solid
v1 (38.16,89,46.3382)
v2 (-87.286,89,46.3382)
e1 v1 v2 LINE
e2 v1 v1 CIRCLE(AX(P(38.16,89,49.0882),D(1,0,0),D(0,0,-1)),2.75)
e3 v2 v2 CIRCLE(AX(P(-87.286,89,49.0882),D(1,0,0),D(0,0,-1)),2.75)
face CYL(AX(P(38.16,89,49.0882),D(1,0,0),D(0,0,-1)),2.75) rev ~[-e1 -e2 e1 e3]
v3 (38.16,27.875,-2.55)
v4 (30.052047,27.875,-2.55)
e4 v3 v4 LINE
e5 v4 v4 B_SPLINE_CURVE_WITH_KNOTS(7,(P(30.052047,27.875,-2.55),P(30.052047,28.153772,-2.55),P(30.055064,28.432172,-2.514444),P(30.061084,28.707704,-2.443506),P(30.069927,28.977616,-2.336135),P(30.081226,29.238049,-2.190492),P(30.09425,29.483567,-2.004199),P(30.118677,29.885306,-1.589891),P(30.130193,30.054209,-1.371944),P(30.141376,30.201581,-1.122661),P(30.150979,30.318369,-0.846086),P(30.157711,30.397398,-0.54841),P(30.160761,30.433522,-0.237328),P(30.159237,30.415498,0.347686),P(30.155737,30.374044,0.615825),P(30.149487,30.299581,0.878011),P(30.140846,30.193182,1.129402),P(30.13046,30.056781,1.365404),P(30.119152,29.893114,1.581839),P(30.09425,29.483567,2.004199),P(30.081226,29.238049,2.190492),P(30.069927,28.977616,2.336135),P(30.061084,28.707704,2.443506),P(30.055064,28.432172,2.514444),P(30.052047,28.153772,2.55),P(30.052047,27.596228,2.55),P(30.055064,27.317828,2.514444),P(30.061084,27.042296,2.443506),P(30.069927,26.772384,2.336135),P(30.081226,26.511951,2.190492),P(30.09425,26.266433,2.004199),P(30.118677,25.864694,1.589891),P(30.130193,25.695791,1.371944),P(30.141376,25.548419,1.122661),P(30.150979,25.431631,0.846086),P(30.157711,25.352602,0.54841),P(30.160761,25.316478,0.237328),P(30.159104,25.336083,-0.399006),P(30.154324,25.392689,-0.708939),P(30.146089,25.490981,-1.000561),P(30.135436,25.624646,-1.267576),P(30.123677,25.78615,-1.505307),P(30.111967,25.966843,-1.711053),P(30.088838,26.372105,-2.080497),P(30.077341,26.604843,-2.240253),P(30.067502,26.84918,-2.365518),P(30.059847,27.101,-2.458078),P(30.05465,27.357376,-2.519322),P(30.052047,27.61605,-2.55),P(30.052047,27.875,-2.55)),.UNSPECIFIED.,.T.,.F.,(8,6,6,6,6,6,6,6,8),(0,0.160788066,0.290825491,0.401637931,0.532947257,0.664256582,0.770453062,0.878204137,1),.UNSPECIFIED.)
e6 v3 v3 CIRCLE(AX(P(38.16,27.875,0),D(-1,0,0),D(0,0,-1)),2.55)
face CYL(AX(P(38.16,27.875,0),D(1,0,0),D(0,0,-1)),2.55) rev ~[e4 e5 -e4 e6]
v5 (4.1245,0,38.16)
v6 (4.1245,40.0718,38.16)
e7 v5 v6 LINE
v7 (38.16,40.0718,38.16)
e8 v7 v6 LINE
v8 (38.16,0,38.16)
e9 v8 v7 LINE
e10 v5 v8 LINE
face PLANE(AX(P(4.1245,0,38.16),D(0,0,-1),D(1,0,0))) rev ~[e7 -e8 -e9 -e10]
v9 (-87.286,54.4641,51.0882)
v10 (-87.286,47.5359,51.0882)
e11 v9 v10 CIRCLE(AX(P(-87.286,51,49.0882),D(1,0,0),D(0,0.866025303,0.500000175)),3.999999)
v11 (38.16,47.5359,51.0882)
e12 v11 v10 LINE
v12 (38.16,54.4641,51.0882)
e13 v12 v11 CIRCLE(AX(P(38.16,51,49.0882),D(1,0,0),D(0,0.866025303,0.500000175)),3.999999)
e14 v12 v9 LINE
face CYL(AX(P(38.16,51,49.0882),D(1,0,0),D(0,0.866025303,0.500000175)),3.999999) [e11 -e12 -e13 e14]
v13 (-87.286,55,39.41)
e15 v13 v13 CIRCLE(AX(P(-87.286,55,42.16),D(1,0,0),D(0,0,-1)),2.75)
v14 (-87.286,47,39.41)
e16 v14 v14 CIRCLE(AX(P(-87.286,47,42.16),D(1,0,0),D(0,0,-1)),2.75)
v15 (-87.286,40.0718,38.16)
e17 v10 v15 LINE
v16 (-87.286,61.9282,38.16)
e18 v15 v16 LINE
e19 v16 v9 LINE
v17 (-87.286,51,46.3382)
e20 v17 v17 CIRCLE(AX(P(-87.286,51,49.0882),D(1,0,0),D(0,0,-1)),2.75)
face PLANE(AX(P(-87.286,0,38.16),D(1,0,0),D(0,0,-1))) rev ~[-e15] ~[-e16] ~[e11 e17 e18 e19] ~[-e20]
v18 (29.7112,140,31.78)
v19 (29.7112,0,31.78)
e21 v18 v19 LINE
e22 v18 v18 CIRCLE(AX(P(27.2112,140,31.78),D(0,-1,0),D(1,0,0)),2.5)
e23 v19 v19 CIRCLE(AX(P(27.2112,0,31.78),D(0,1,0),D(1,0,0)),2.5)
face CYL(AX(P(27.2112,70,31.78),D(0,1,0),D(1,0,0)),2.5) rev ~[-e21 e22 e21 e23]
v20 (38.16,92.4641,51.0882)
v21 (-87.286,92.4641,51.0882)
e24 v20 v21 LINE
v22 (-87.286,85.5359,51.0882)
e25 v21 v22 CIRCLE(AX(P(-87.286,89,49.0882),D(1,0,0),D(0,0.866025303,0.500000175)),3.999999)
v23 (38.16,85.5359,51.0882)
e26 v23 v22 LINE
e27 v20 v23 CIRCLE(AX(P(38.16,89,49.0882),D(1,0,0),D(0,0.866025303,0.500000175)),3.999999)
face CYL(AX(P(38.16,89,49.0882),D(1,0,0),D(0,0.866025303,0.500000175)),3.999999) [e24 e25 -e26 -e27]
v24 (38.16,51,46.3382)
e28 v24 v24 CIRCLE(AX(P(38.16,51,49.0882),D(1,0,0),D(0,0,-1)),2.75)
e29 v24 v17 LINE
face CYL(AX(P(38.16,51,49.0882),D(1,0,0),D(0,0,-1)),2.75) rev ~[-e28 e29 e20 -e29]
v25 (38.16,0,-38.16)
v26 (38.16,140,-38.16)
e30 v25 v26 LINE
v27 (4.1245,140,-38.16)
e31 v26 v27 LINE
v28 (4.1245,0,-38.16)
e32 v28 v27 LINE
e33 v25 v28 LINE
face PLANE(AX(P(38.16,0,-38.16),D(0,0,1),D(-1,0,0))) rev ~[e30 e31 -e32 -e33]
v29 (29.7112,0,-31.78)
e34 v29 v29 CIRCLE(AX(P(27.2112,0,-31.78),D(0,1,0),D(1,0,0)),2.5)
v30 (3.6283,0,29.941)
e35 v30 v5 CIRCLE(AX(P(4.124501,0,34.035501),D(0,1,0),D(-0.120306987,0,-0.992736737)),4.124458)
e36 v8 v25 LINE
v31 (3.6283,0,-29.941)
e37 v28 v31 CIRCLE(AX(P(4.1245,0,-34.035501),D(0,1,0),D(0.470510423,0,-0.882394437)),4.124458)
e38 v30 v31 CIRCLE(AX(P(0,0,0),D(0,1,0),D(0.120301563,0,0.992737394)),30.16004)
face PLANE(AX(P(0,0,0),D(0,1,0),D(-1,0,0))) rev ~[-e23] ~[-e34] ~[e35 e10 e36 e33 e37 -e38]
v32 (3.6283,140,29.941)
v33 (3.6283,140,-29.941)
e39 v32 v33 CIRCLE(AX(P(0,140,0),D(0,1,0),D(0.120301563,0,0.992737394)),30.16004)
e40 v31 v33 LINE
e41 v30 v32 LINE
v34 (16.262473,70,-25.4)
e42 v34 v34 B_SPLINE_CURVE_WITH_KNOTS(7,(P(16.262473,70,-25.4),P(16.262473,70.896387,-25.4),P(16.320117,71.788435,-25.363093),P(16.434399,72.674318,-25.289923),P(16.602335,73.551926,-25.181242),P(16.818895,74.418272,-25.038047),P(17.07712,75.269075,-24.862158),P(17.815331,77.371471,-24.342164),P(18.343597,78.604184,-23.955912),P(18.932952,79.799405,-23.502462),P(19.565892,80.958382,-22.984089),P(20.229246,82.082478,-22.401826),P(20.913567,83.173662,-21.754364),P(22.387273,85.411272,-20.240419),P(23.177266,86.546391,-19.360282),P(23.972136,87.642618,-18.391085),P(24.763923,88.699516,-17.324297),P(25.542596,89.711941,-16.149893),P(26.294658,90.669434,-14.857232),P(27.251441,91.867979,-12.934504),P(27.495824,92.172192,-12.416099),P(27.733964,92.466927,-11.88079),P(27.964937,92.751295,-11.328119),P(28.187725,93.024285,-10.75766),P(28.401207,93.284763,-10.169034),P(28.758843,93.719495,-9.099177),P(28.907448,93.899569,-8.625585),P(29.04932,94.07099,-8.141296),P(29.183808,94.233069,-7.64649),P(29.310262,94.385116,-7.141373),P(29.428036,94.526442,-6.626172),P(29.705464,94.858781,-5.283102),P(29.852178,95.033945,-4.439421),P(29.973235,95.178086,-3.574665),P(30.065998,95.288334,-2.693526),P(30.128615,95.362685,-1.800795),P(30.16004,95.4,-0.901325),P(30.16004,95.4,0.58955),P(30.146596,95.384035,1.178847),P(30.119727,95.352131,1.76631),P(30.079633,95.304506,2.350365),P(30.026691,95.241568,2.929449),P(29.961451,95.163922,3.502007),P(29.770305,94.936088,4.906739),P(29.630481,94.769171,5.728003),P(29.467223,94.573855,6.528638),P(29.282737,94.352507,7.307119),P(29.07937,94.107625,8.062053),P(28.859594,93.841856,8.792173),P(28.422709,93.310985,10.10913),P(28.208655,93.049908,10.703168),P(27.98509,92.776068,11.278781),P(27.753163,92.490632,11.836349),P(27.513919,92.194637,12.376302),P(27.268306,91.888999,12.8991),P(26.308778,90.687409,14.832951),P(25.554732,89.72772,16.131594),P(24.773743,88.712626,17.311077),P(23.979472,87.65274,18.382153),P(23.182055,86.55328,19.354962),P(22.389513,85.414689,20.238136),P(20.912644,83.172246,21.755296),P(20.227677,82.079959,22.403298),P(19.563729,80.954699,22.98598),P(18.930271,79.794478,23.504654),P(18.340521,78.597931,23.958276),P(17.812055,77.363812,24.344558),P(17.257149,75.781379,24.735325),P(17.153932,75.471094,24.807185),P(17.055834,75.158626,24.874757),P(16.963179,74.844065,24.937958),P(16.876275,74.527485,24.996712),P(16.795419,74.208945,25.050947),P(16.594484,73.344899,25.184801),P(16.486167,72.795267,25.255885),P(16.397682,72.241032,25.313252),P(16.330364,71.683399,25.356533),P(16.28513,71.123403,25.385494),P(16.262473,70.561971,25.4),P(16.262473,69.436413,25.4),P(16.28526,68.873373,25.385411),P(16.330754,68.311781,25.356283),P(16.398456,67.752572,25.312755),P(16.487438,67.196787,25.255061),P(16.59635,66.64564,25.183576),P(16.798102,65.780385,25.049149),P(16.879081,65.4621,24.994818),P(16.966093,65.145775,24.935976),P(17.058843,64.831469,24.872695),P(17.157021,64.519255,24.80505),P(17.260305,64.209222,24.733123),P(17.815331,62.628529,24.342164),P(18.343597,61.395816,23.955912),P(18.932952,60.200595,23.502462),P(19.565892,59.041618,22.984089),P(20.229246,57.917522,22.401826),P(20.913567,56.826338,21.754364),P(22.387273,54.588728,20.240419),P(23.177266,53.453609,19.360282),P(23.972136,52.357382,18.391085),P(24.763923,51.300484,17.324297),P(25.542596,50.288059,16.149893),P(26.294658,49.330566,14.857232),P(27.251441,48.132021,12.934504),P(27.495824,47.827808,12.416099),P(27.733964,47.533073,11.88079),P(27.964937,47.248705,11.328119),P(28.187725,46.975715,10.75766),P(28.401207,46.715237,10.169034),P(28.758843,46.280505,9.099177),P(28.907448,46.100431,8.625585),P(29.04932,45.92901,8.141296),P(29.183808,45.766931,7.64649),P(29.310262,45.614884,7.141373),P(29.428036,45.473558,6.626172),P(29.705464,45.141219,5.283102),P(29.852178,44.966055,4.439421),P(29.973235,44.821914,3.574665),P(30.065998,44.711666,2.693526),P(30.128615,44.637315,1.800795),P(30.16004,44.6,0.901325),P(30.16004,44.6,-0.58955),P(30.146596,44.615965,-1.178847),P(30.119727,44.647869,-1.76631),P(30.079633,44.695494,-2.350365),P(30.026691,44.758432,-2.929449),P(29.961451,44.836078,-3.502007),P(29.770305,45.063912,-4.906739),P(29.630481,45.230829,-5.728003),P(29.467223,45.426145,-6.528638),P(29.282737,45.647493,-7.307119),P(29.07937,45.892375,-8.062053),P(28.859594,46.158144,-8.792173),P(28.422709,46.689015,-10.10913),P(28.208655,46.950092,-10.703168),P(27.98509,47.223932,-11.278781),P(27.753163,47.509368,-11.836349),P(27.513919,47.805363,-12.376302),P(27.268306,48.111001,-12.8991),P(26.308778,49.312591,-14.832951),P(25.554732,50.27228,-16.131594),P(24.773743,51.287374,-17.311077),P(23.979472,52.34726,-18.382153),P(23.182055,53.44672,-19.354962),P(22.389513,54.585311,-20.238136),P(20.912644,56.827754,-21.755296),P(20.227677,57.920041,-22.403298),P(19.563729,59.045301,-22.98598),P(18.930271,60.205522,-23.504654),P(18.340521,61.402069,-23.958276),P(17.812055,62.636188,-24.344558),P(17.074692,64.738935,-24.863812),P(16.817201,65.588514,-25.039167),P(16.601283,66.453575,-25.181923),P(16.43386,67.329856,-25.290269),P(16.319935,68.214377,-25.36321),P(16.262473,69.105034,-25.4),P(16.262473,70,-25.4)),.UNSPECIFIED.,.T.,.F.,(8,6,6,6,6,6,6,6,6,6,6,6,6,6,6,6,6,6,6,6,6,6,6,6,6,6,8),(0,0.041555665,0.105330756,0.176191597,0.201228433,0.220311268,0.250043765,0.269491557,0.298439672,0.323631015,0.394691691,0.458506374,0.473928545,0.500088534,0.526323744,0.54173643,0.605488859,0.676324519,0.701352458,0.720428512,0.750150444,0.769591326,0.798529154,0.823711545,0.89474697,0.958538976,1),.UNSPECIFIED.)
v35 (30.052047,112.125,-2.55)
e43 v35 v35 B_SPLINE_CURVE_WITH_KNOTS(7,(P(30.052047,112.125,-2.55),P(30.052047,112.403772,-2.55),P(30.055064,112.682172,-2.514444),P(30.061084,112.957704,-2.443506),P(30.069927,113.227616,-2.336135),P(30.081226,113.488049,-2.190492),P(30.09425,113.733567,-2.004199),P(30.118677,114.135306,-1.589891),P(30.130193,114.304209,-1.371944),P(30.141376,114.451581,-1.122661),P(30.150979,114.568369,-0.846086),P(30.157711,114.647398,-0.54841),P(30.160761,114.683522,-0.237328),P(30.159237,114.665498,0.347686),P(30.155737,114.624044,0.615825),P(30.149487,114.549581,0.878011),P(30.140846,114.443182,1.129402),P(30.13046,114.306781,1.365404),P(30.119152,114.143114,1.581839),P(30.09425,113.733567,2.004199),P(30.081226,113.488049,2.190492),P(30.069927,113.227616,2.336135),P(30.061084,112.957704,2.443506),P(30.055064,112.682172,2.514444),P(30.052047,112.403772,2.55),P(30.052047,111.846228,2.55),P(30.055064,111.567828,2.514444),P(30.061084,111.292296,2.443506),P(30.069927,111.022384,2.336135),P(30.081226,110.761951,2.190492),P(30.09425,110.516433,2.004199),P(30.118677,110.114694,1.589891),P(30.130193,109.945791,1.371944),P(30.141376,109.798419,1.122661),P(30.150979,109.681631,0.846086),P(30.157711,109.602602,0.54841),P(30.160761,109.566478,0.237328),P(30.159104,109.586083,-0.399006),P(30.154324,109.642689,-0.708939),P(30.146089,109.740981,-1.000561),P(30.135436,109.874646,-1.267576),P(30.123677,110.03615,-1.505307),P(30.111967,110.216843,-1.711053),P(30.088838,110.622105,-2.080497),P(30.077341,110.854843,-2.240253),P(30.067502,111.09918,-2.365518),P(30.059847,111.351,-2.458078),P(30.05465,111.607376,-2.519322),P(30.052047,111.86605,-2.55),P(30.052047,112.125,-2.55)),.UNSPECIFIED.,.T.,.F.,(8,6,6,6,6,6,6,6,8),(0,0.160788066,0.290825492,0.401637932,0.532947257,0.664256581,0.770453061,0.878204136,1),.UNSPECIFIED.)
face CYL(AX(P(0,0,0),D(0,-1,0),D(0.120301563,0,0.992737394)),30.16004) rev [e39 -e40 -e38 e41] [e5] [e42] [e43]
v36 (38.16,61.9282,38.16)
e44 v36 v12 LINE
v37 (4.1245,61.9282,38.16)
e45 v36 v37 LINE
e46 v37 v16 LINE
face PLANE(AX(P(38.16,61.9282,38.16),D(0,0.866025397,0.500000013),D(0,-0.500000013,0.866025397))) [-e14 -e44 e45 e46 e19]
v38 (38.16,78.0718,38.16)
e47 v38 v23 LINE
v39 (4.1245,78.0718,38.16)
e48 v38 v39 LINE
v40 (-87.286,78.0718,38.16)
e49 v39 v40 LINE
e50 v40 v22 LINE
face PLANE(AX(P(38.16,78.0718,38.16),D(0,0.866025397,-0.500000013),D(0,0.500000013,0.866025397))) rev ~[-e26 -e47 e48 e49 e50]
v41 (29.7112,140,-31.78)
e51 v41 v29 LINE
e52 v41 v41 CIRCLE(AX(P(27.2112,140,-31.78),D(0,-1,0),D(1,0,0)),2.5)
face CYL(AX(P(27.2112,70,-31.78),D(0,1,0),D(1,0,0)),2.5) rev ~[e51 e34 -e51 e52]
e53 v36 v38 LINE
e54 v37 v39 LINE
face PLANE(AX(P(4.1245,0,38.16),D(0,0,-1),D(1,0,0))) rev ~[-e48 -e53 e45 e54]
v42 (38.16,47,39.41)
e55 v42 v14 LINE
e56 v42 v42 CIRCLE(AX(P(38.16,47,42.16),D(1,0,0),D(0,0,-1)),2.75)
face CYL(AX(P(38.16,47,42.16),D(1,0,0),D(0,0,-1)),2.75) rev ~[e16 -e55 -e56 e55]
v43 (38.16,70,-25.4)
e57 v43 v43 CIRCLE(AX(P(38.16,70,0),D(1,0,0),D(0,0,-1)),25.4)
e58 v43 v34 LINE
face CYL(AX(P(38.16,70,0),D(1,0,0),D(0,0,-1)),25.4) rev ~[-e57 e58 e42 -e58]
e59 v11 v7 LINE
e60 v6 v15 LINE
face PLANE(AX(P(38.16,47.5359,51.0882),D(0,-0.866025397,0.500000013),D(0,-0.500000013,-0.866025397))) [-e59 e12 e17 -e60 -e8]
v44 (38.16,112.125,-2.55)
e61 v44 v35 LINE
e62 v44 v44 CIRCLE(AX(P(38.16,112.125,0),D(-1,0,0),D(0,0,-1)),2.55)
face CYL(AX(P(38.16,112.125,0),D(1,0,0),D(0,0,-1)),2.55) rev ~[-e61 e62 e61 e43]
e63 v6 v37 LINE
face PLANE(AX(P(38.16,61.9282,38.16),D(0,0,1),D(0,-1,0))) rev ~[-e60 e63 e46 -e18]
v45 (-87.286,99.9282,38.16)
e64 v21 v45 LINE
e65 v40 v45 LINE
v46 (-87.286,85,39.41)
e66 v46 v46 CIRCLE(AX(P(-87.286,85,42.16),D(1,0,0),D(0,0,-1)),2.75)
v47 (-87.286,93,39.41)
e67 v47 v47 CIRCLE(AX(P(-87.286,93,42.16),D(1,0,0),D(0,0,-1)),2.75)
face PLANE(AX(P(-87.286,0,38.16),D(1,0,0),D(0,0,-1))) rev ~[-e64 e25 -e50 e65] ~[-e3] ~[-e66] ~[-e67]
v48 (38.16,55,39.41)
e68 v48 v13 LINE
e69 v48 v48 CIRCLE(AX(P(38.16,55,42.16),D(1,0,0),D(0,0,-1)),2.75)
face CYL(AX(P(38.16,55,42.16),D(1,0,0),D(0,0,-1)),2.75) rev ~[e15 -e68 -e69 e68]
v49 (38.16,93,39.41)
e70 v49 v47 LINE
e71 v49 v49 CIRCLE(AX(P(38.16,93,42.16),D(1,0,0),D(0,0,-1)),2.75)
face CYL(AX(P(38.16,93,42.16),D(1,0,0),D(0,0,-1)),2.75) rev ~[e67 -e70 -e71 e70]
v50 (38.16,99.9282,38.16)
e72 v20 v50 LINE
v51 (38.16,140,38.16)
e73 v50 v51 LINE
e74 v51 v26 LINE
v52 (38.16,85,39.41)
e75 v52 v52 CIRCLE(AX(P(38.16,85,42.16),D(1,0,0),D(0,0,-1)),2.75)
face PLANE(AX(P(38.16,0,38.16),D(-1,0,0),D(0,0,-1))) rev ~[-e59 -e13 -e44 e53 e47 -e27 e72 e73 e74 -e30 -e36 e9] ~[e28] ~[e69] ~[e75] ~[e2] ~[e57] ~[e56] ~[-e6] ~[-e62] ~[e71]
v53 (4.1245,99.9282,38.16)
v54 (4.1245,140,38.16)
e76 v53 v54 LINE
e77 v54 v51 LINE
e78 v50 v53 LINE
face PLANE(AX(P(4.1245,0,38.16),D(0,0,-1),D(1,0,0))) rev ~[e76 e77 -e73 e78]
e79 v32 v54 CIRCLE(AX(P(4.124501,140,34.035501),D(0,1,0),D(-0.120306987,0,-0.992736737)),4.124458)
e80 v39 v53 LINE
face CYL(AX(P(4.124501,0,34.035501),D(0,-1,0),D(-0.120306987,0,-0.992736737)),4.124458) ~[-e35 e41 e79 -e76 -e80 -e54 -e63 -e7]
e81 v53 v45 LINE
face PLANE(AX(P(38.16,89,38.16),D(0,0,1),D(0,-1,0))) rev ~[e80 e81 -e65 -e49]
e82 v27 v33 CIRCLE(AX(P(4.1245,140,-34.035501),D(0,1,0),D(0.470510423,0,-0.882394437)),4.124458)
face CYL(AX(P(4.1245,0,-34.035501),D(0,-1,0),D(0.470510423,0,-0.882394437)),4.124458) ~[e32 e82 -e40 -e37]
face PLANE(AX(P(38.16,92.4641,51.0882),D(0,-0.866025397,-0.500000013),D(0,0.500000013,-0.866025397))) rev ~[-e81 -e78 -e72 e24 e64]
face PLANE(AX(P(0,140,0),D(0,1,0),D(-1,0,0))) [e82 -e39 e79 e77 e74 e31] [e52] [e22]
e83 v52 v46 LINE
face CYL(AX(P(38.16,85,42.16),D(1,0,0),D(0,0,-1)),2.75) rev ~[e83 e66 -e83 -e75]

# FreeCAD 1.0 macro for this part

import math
import FreeCAD as App
import Part
import Sketcher

V = App.Vector
Q = App.Units.Quantity

doc = App.newDocument("Part")
body = doc.addObject("PartDesign::Body", "Body")

# Sketch on XZ plane
sketch1 = body.newObject("Sketcher::SketchObject", "Sketch")
sketch1.AttachmentSupport = (doc.getObject("XZ_Plane"), [""])
sketch1.MapMode = "FlatFace"
sketch1.addGeometry([
    Part.LineSegment(V(4.1245, 38.16, 0), V(38.16, 38.16, 0)),  # 0
    Part.LineSegment(V(38.16, 38.16, 0), V(38.16, -38.16, 0)),  # 1
    Part.LineSegment(V(38.16, -38.16, 0), V(4.1245, -38.16, 0)),  # 2
    Part.ArcOfCircle(Part.Circle(V(4.1245, -34.0355, 0), V(0, 0, 1), 4.124459), math.radians(96.909806), math.radians(270)),  # 3
    Part.ArcOfCircle(Part.Circle(V(0, 0, 0), V(0, 0, 1), 30.16004), math.radians(-83.090493), math.radians(83.090493)),  # 4
    Part.ArcOfCircle(Part.Circle(V(4.1245, 34.0355, 0), V(0, 0, 1), 4.124457), math.radians(90), math.radians(263.090194)),  # 5
], False)
sketch1.addConstraint([
    Sketcher.Constraint("Coincident", 0, 2, 1, 1),
    Sketcher.Constraint("Coincident", 1, 2, 2, 1),
    Sketcher.Constraint("Tangent", 2, 2, 3, 2),
    Sketcher.Constraint("Tangent", 3, 1, 4, 1),
    Sketcher.Constraint("Tangent", 4, 2, 5, 2),
    Sketcher.Constraint("Tangent", 5, 1, 0, 1),
    Sketcher.Constraint("Horizontal", 0),
    Sketcher.Constraint("Vertical", 1),
    Sketcher.Constraint("Horizontal", 2),
    Sketcher.Constraint("Coincident", 4, 3, -1, 1),
    Sketcher.Constraint("Equal", 3, 5),
    Sketcher.Constraint("Vertical", 3, 3, 5, 3),
    Sketcher.Constraint("Radius", 4, Q("30.16 mm")),
    Sketcher.Constraint("DistanceY", 1, 2, 1, 1, Q("76.32 mm")),
    Sketcher.Constraint("Radius", 3, Q("4.1245 mm")),
    Sketcher.Constraint("DistanceX", -1, 1, 0, 2, Q("38.16 mm")),
])
pad1 = body.newObject("PartDesign::Pad", "Pad")
pad1.Profile = sketch1
pad1.Length = 140
pad1.Reversed = True

# Sketch on YZ plane
sketch2 = body.newObject("Sketcher::SketchObject", "Sketch001")
sketch2.AttachmentSupport = (doc.getObject("YZ_Plane"), [""])
sketch2.MapMode = "FlatFace"
sketch2.AttachmentOffset = App.Placement(V(0, 0, 38.16), App.Rotation())
sketch2.addGeometry(Part.Circle(V(70, 0, 0), V(0, 0, 1), 25.4), False)
sketch2.addConstraint([
    Sketcher.Constraint("PointOnObject", 0, 3, -1),
    Sketcher.Constraint("Diameter", 0, Q("50.8 mm")),
    Sketcher.Constraint("DistanceX", -1, 1, 0, 3, Q("70 mm")),
])
pocket1 = body.newObject("PartDesign::Pocket", "Pocket")
pocket1.Profile = sketch2
pocket1.Type = "UpToFirst"

# Sketch on XZ plane
sketch3 = body.newObject("Sketcher::SketchObject", "Sketch002")
sketch3.AttachmentSupport = (doc.getObject("XZ_Plane"), [""])
sketch3.MapMode = "FlatFace"
sketch3.AttachmentOffset = App.Placement(V(0, 0, -70), App.Rotation())
sketch3.addGeometry([
    Part.Circle(V(27.2112, -31.78, 0), V(0, 0, 1), 2.5),
    Part.Circle(V(27.2112, 31.78, 0), V(0, 0, 1), 2.5),
], False)
sketch3.addConstraint([
    Sketcher.Constraint("Equal", 0, 1),
    Sketcher.Constraint("Symmetric", 0, 3, 1, 3, -1),
    Sketcher.Constraint("Diameter", 0, Q("5 mm")),
    Sketcher.Constraint("DistanceY", 0, 3, -1, 1, Q("31.78 mm")),
    Sketcher.Constraint("DistanceX", -1, 1, 0, 3, Q("27.2112 mm")),
])
pocket2 = body.newObject("PartDesign::Pocket", "Pocket001")
pocket2.Profile = sketch3
pocket2.Type = "ThroughAll"
pocket2.Midplane = True

# Sketch on YZ plane
sketch4 = body.newObject("Sketcher::SketchObject", "Sketch003")
sketch4.AttachmentSupport = (doc.getObject("YZ_Plane"), [""])
sketch4.MapMode = "FlatFace"
sketch4.AttachmentOffset = App.Placement(V(0, 0, 38.16), App.Rotation())
sketch4.addGeometry([
    Part.Circle(V(112.125, 0, 0), V(0, 0, 1), 2.55),
    Part.Circle(V(27.875, 0, 0), V(0, 0, 1), 2.55),
], False)
sketch4.addConstraint([
    Sketcher.Constraint("Equal", 0, 1),
    Sketcher.Constraint("PointOnObject", 0, 3, -1),
    Sketcher.Constraint("PointOnObject", 1, 3, -1),
    Sketcher.Constraint("Diameter", 0, Q("5.1 mm")),
    Sketcher.Constraint("DistanceX", 1, 3, 0, 3, Q("84.25 mm")),
    Sketcher.Constraint("DistanceX", -1, 1, 0, 3, Q("112.125 mm")),
])
pocket3 = body.newObject("PartDesign::Pocket", "Pocket002")
pocket3.Profile = sketch4
pocket3.Length = 8.108

# Sketch on YZ plane
sketch5 = body.newObject("Sketcher::SketchObject", "Sketch004")
sketch5.AttachmentSupport = (doc.getObject("YZ_Plane"), [""])
sketch5.MapMode = "FlatFace"
sketch5.AttachmentOffset = App.Placement(V(0, 0, 38.16), App.Rotation())
sketch5.addGeometry([
    Part.LineSegment(V(40.0718, 38.16, 0), V(61.9282, 38.16, 0)),  # 0
    Part.LineSegment(V(61.9282, 38.16, 0), V(54.4641, 51.0882, 0)),  # 1
    Part.ArcOfCircle(Part.Circle(V(51, 49.0882, 0), V(0, 0, 1), 3.999999), math.radians(30.000012), math.radians(149.999988)),  # 2
    Part.LineSegment(V(47.5359, 51.0882, 0), V(40.0718, 38.16, 0)),  # 3
    Part.Circle(V(51, 49.0882, 0), V(0, 0, 1), 2.75),  # 4
    Part.Circle(V(47, 42.16, 0), V(0, 0, 1), 2.75),  # 5
    Part.Circle(V(55, 42.16, 0), V(0, 0, 1), 2.75),  # 6
    Part.LineSegment(V(78.0718, 38.16, 0), V(99.9282, 38.16, 0)),  # 7
    Part.LineSegment(V(99.9282, 38.16, 0), V(92.4641, 51.0882, 0)),  # 8
    Part.ArcOfCircle(Part.Circle(V(89, 49.0882, 0), V(0, 0, 1), 3.999999), math.radians(30.000012), math.radians(149.999988)),  # 9
    Part.LineSegment(V(85.5359, 51.0882, 0), V(78.0718, 38.16, 0)),  # 10
    Part.Circle(V(89, 49.0882, 0), V(0, 0, 1), 2.75),  # 11
    Part.Circle(V(85, 42.16, 0), V(0, 0, 1), 2.75),  # 12
    Part.Circle(V(93, 42.16, 0), V(0, 0, 1), 2.75),  # 13
], False)
sketch5.addConstraint([
    Sketcher.Constraint("Coincident", 0, 2, 1, 1),
    Sketcher.Constraint("Tangent", 1, 2, 2, 1),
    Sketcher.Constraint("Tangent", 2, 2, 3, 1),
    Sketcher.Constraint("Coincident", 3, 2, 0, 1),
    Sketcher.Constraint("Coincident", 7, 2, 8, 1),
    Sketcher.Constraint("Tangent", 8, 2, 9, 1),
    Sketcher.Constraint("Tangent", 9, 2, 10, 1),
    Sketcher.Constraint("Coincident", 10, 2, 7, 1),
    Sketcher.Constraint("Horizontal", 0),
    Sketcher.Constraint("Horizontal", 7),
    Sketcher.Constraint("Coincident", 4, 3, 2, 3),
    Sketcher.Constraint("Coincident", 11, 3, 9, 3),
    Sketcher.Constraint("Equal", 4, 5),
    Sketcher.Constraint("Equal", 5, 6),
    Sketcher.Constraint("Equal", 2, 9),
    Sketcher.Constraint("Equal", 6, 11),
    Sketcher.Constraint("Equal", 11, 12),
    Sketcher.Constraint("Equal", 12, 13),
    Sketcher.Constraint("Parallel", 1, 8),
    Sketcher.Constraint("Parallel", 3, 10),
    Sketcher.Constraint("Horizontal", 5, 3, 6, 3),
    Sketcher.Constraint("Horizontal", 4, 3, 9, 3),
    Sketcher.Constraint("Horizontal", 6, 3, 12, 3),
    Sketcher.Constraint("Horizontal", 12, 3, 13, 3),
    Sketcher.Constraint("Horizontal", 1, 2, 2, 2),
    Sketcher.Constraint("Horizontal", 3, 2, 7, 2),
    Sketcher.Constraint("Radius", 2, Q("4 mm")),
    Sketcher.Constraint("Diameter", 4, Q("5.5 mm")),
    Sketcher.Constraint("DistanceX", 5, 3, 6, 3, Q("8 mm")),
    Sketcher.Constraint("DistanceX", 2, 3, 9, 3, Q("38 mm")),
    Sketcher.Constraint("DistanceX", 12, 3, 13, 3, Q("8 mm")),
    Sketcher.Constraint("DistanceX", 6, 3, 13, 3, Q("38 mm")),
    Sketcher.Constraint("Angle", 1, Q("120 deg")),
    Sketcher.Constraint("DistanceX", -1, 1, 2, 3, Q("51 mm")),
    Sketcher.Constraint("DistanceX", -1, 1, 5, 3, Q("47 mm")),
    Sketcher.Constraint("DistanceY", 0, 2, 6, 3, Q("4 mm")),
    Sketcher.Constraint("DistanceY", -1, 1, 5, 3, Q("42.16 mm")),
    Sketcher.Constraint("DistanceX", 0, 1, 0, 2, Q("21.8564 mm")),
])
pad2 = body.newObject("PartDesign::Pad", "Pad001")
pad2.Profile = sketch5
pad2.Length = 125.446
pad2.Reversed = True

doc.recompute()
